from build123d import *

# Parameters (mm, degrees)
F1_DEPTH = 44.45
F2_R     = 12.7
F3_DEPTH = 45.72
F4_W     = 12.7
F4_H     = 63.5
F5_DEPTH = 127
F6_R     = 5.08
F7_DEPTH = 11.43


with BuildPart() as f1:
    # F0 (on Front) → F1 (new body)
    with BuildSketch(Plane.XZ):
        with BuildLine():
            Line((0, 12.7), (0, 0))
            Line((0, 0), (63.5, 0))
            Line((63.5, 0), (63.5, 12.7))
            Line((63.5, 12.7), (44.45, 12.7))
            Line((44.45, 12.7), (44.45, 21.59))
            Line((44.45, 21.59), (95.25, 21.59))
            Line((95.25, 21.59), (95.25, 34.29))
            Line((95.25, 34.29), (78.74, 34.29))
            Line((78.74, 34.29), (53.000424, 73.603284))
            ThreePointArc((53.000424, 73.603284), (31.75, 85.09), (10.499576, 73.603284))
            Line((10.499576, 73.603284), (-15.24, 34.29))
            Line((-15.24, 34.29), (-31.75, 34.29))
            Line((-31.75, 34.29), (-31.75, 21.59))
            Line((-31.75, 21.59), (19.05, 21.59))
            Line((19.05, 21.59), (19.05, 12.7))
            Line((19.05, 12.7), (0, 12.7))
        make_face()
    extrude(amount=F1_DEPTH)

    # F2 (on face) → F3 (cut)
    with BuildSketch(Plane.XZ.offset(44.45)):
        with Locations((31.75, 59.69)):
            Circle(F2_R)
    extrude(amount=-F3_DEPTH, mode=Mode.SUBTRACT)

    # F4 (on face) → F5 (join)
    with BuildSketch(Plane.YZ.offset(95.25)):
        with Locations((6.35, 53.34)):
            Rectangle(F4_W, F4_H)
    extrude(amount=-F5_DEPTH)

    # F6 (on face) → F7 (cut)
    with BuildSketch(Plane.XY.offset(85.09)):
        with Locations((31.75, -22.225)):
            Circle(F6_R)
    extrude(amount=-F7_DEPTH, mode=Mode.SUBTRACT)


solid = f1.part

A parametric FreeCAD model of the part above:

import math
import FreeCAD as App
import Part
import Sketcher
Q = App.Units.Quantity

doc = App.newDocument("Part")
body = doc.addObject("PartDesign::Body", "Body")

sketch1 = doc.addObject("Sketcher::SketchObject", "Sketch")
body.addObject(sketch1)
sketch1.AttachmentSupport = (doc.XZ_Plane, [""])
sketch1.MapMode = "FlatFace"
sketch1.addGeometry(Part.LineSegment(App.Vector(0, 13, 0), App.Vector(0, 0, 0)), False)
sketch1.addGeometry(Part.LineSegment(App.Vector(0, 0, 0), App.Vector(64, 0, 0)), False)
sketch1.addGeometry(Part.LineSegment(App.Vector(64, 0, 0), App.Vector(64, 13, 0)), False)
sketch1.addGeometry(Part.LineSegment(App.Vector(64, 13, 0), App.Vector(44, 13, 0)), False)
sketch1.addGeometry(Part.LineSegment(App.Vector(44, 13, 0), App.Vector(44, 22, 0)), False)
sketch1.addGeometry(Part.LineSegment(App.Vector(44, 22, 0), App.Vector(95, 22, 0)), False)
sketch1.addGeometry(Part.LineSegment(App.Vector(95, 22, 0), App.Vector(95, 34, 0)), False)
sketch1.addGeometry(Part.LineSegment(App.Vector(95, 34, 0), App.Vector(79, 34, 0)), False)
sketch1.addGeometry(Part.LineSegment(App.Vector(79, 34, 0), App.Vector(53, 74, 0)), False)
sketch1.addGeometry(Part.ArcOfCircle(Part.Circle(App.Vector(32, 60, 0), App.Vector(0, 0, 1), 25), math.radians(33), math.radians(147)), False)
sketch1.addGeometry(Part.LineSegment(App.Vector(10, 74, 0), App.Vector(-15, 34, 0)), False)
sketch1.addGeometry(Part.LineSegment(App.Vector(-15, 34, 0), App.Vector(-32, 34, 0)), False)
sketch1.addGeometry(Part.LineSegment(App.Vector(-32, 34, 0), App.Vector(-32, 22, 0)), False)
sketch1.addGeometry(Part.LineSegment(App.Vector(-32, 22, 0), App.Vector(19, 22, 0)), False)
sketch1.addGeometry(Part.LineSegment(App.Vector(19, 22, 0), App.Vector(19, 13, 0)), False)
sketch1.addGeometry(Part.LineSegment(App.Vector(19, 13, 0), App.Vector(0, 13, 0)), False)
sketch1.addConstraint(Sketcher.Constraint("Coincident", 0, 2, 1, 1))
sketch1.addConstraint(Sketcher.Constraint("Coincident", 1, 2, 2, 1))
sketch1.addConstraint(Sketcher.Constraint("Coincident", 2, 2, 3, 1))
sketch1.addConstraint(Sketcher.Constraint("Coincident", 3, 2, 4, 1))
sketch1.addConstraint(Sketcher.Constraint("Coincident", 4, 2, 5, 1))
sketch1.addConstraint(Sketcher.Constraint("Coincident", 5, 2, 6, 1))
sketch1.addConstraint(Sketcher.Constraint("Coincident", 6, 2, 7, 1))
sketch1.addConstraint(Sketcher.Constraint("Coincident", 7, 2, 8, 1))
sketch1.addConstraint(Sketcher.Constraint("Tangent", 8, 2, 9, 1))
sketch1.addConstraint(Sketcher.Constraint("Tangent", 9, 2, 10, 1))
sketch1.addConstraint(Sketcher.Constraint("Coincident", 10, 2, 11, 1))
sketch1.addConstraint(Sketcher.Constraint("Coincident", 11, 2, 12, 1))
sketch1.addConstraint(Sketcher.Constraint("Coincident", 12, 2, 13, 1))
sketch1.addConstraint(Sketcher.Constraint("Coincident", 13, 2, 14, 1))
sketch1.addConstraint(Sketcher.Constraint("Coincident", 14, 2, 15, 1))
sketch1.addConstraint(Sketcher.Constraint("Coincident", 15, 2, 0, 1))
sketch1.addConstraint(Sketcher.Constraint("Vertical", 0))
sketch1.addConstraint(Sketcher.Constraint("Horizontal", 1))
sketch1.addConstraint(Sketcher.Constraint("Vertical", 2))
sketch1.addConstraint(Sketcher.Constraint("Horizontal", 3))
sketch1.addConstraint(Sketcher.Constraint("Vertical", 4))
sketch1.addConstraint(Sketcher.Constraint("Horizontal", 5))
sketch1.addConstraint(Sketcher.Constraint("Vertical", 6))
sketch1.addConstraint(Sketcher.Constraint("Horizontal", 7))
sketch1.addConstraint(Sketcher.Constraint("Horizontal", 11))
sketch1.addConstraint(Sketcher.Constraint("Vertical", 12))
sketch1.addConstraint(Sketcher.Constraint("Horizontal", 13))
sketch1.addConstraint(Sketcher.Constraint("Vertical", 14))
sketch1.addConstraint(Sketcher.Constraint("Horizontal", 15))
sketch1.addConstraint(Sketcher.Constraint("Coincident", 0, 2, -1, 1))
sketch1.addConstraint(Sketcher.Constraint("Horizontal", 8, 2, 9, 2))
sketch1.addConstraint(Sketcher.Constraint("Horizontal", 7, 2, 10, 2))
sketch1.addConstraint(Sketcher.Constraint("Horizontal", 5, 2, 12, 2))
sketch1.addConstraint(Sketcher.Constraint("Horizontal", 3, 2, 14, 2))
sketch1.addConstraint(Sketcher.Constraint("Equal", 7, 11))
sketch1.addConstraint(Sketcher.Constraint("Equal", 5, 13))
sketch1.addConstraint(Sketcher.Constraint("Equal", 3, 15))
sketch1.addConstraint(Sketcher.Constraint("Equal", 2, 6))
sketch1.addConstraint(Sketcher.Constraint("Radius", 9, Q("1 in")))
sketch1.addConstraint(Sketcher.Constraint("DistanceX", 5, 1, 5, 2, Q("2 in")))
sketch1.addConstraint(Sketcher.Constraint("DistanceX", 1, 1, 1, 2, Q("2.5 in")))
sketch1.addConstraint(Sketcher.Constraint("DistanceY", 0, 2, 0, 1, Q("0.5 in")))
sketch1.addConstraint(Sketcher.Constraint("DistanceY", 10, 2, 9, 3, Q("1 in")))
sketch1.addConstraint(Sketcher.Constraint("DistanceX", 11, 2, 4, 2, Q("3 in")))
sketch1.addConstraint(Sketcher.Constraint("DistanceX", 7, 2, 7, 1, Q("0.65 in")))
sketch1.addConstraint(Sketcher.Constraint("DistanceY", 4, 1, 4, 2, Q("0.35 in")))
pad1 = doc.addObject("PartDesign::Pad", "Pad")
body.addObject(pad1)
pad1.Profile = sketch1
pad1.Length = Q("1.75 in")

sketch2 = doc.addObject("Sketcher::SketchObject", "Sketch001")
body.addObject(sketch2)
sketch2.AttachmentSupport = (doc.XZ_Plane, [""])
sketch2.MapMode = "FlatFace"
sketch2.AttachmentOffset = App.Placement(App.Vector(0, 0, 1.75 * 25.4), App.Rotation())
sketch2.addGeometry(Part.Circle(App.Vector(32, 60, 0), App.Vector(0, 0, 1), 13), False)
sketch2.addConstraint(Sketcher.Constraint("Diameter", 0, Q("1 in")))
sketch2.addConstraint(Sketcher.Constraint("DistanceX", -1, 1, 0, 3, Q("1.25 in")))
sketch2.addConstraint(Sketcher.Constraint("DistanceY", -1, 1, 0, 3, Q("2.35 in")))
pocket1 = doc.addObject("PartDesign::Pocket", "Pocket")
body.addObject(pocket1)
pocket1.Profile = sketch2
pocket1.Length = Q("1.8 in")

sketch3 = doc.addObject("Sketcher::SketchObject", "Sketch002")
body.addObject(sketch3)
sketch3.AttachmentSupport = (doc.YZ_Plane, [""])
sketch3.MapMode = "FlatFace"
sketch3.AttachmentOffset = App.Placement(App.Vector(0, 0, 3.75 * 25.4), App.Rotation())
sketch3.addGeometry(Part.LineSegment(App.Vector(0, 85, 0), App.Vector(0, 22, 0)), False)
sketch3.addGeometry(Part.LineSegment(App.Vector(0, 22, 0), App.Vector(13, 22, 0)), False)
sketch3.addGeometry(Part.LineSegment(App.Vector(13, 22, 0), App.Vector(13, 85, 0)), False)
sketch3.addGeometry(Part.LineSegment(App.Vector(13, 85, 0), App.Vector(0, 85, 0)), False)
sketch3.addConstraint(Sketcher.Constraint("Coincident", 0, 2, 1, 1))
sketch3.addConstraint(Sketcher.Constraint("Coincident", 1, 2, 2, 1))
sketch3.addConstraint(Sketcher.Constraint("Coincident", 2, 2, 3, 1))
sketch3.addConstraint(Sketcher.Constraint("Coincident", 3, 2, 0, 1))
sketch3.addConstraint(Sketcher.Constraint("Vertical", 0))
sketch3.addConstraint(Sketcher.Constraint("Horizontal", 1))
sketch3.addConstraint(Sketcher.Constraint("Vertical", 2))
sketch3.addConstraint(Sketcher.Constraint("Horizontal", 3))
sketch3.addConstraint(Sketcher.Constraint("PointOnObject", 0, 2, -2))
sketch3.addConstraint(Sketcher.Constraint("DistanceX", 1, 1, 1, 2, Q("0.5 in")))
sketch3.addConstraint(Sketcher.Constraint("DistanceY", 0, 2, 0, 1, Q("2.5 in")))
sketch3.addConstraint(Sketcher.Constraint("DistanceY", -1, 1, 0, 2, Q("0.85 in")))
pad2 = doc.addObject("PartDesign::Pad", "Pad001")
body.addObject(pad2)
pad2.Profile = sketch3
pad2.Length = Q("5 in")
pad2.Reversed = True

sketch4 = doc.addObject("Sketcher::SketchObject", "Sketch003")
body.addObject(sketch4)
sketch4.AttachmentSupport = (doc.XY_Plane, [""])
sketch4.MapMode = "FlatFace"
sketch4.AttachmentOffset = App.Placement(App.Vector(0, 0, 3.35 * 25.4), App.Rotation())
sketch4.addGeometry(Part.Circle(App.Vector(32, -22, 0), App.Vector(0, 0, 1), 5), False)
sketch4.addConstraint(Sketcher.Constraint("Diameter", 0, Q("0.4 in")))
sketch4.addConstraint(Sketcher.Constraint("DistanceX", -1, 1, 0, 3, Q("1.25 in")))
sketch4.addConstraint(Sketcher.Constraint("DistanceY", 0, 3, -1, 1, Q("0.875 in")))
pocket2 = doc.addObject("PartDesign::Pocket", "Pocket001")
body.addObject(pocket2)
pocket2.Profile = sketch4
pocket2.Length = Q("0.45 in")

doc.recompute()
